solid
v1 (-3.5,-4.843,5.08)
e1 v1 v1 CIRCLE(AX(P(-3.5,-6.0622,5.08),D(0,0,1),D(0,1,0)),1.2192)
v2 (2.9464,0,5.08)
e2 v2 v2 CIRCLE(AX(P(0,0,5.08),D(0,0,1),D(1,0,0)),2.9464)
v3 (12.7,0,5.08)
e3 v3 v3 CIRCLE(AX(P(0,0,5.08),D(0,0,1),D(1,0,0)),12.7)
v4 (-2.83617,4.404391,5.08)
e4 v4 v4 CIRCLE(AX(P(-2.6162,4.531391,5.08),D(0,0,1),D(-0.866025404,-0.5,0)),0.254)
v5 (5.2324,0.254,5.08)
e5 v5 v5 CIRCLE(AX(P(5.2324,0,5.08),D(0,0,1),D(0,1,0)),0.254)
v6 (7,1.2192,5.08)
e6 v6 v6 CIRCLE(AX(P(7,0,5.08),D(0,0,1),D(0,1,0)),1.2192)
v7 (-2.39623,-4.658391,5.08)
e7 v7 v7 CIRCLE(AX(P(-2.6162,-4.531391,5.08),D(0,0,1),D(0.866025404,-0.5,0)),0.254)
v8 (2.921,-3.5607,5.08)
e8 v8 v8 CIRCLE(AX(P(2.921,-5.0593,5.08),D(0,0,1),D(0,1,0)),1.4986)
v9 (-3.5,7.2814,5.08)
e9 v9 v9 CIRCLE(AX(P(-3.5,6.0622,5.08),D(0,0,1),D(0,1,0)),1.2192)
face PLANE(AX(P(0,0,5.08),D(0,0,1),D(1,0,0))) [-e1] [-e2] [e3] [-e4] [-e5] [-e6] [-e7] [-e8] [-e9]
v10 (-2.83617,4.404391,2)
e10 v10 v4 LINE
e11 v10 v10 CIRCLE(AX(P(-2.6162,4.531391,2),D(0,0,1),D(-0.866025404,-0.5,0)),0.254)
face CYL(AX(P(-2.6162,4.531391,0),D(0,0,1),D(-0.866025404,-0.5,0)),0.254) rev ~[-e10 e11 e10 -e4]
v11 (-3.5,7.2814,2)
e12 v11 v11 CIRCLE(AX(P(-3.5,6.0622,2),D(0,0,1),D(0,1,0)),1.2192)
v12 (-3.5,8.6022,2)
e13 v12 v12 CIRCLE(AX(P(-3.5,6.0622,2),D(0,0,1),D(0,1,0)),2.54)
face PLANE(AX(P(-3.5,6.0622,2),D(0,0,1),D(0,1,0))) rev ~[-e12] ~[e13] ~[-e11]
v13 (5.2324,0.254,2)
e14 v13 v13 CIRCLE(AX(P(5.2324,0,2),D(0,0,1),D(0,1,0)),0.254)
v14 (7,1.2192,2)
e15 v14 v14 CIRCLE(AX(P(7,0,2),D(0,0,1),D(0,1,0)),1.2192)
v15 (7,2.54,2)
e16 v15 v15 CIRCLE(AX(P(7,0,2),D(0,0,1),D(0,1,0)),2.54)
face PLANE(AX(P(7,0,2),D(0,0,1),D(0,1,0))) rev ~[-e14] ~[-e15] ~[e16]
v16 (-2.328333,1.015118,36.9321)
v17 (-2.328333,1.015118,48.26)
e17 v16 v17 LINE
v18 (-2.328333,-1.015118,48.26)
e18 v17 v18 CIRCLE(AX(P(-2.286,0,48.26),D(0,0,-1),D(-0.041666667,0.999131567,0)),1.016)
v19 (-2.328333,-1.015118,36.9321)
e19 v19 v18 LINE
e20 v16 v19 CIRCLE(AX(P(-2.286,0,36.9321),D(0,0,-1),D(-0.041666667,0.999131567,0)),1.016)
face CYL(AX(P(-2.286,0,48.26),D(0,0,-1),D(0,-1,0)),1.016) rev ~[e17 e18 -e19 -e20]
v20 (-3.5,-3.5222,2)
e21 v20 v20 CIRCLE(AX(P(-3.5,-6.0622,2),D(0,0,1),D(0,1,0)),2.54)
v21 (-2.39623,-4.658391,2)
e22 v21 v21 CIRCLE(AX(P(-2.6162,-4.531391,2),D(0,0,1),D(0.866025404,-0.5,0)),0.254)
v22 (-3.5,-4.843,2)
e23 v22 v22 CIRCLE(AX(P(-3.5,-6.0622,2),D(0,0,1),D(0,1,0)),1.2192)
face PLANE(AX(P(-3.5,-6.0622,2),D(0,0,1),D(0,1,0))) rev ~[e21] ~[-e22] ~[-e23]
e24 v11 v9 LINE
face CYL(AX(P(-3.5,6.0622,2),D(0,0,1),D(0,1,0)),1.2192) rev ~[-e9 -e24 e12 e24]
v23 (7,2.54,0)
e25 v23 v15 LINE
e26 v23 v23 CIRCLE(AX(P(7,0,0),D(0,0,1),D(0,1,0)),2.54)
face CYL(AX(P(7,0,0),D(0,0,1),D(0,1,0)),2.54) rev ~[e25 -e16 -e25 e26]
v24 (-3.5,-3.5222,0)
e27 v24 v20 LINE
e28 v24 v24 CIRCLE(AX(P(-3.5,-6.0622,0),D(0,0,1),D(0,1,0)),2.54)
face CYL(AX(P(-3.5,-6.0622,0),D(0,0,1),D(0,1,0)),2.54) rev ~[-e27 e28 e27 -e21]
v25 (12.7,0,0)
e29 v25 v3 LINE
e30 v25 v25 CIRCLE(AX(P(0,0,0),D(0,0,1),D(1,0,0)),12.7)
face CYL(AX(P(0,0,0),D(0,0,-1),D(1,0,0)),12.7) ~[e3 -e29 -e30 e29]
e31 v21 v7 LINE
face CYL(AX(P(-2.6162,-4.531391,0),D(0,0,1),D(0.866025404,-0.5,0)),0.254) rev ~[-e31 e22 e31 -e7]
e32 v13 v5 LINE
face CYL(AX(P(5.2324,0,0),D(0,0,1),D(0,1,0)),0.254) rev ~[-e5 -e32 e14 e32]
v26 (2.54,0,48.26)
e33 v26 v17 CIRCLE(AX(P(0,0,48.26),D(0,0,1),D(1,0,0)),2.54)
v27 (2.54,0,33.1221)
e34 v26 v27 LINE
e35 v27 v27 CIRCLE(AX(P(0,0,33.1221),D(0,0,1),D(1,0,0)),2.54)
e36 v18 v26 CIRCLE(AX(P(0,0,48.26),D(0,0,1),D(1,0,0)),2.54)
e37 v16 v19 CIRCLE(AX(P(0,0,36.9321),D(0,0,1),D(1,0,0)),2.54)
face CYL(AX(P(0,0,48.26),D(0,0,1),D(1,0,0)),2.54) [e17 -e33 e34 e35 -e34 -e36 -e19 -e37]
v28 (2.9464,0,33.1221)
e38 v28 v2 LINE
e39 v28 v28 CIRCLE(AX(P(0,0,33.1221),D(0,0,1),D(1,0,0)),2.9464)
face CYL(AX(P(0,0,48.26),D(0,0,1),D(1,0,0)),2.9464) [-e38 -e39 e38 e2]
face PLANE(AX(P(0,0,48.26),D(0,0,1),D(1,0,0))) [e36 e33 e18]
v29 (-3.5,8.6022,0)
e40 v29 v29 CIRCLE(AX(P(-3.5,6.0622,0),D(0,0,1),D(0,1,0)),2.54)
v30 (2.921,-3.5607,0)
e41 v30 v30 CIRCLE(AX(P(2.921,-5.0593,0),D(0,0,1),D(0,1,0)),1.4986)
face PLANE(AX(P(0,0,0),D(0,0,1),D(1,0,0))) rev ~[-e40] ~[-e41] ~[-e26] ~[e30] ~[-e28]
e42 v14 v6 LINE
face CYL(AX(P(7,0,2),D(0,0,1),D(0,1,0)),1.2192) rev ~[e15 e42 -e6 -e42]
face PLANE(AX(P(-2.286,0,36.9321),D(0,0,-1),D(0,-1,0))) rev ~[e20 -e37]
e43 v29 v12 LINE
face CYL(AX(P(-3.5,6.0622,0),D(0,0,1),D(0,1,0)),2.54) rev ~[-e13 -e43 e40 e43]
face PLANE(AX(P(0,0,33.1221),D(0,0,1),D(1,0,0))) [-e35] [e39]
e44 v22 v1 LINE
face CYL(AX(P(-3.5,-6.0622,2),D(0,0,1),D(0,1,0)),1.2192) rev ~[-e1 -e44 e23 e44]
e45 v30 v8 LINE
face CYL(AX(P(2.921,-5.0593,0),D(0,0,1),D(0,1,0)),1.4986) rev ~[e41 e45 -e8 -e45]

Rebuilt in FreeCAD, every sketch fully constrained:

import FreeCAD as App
import Part
import Sketcher

V = App.Vector
Q = App.Units.Quantity

doc = App.newDocument("Part")
params = doc.addObject("Spreadsheet::Sheet", "Params")
for row, (alias, value) in enumerate([
    ("sketch1_diameter", "1 in"),
    ("pad1_length", "1.9 in"),
    ("sketch2_diameter", "1 in"),
    ("sketch2_diameter2", "0.232 in"),
    ("pocket1_length", "1.7 in"),
    ("sketch3_diameter", "0.096 in"),
    ("hole_diameter", "0.096 in"),
    ("hole_cbore_diameter", "0.2 in"),
    ("hole_cbore_depth", "2 mm"),
    ("sketch4_diameter", "0.118 in"),
    ("hole2_diameter", "0.118 in"),
    ("sketch5_diameter", "0.2 in"),
    ("sketch5_diameter2", "0.232 in"),
    ("pocket2_length", "15.1379 mm"),
    ("sketch6_diameter", "0.08 in"),
    ("hole3_diameter", "0.08 in"),
    ("hole3_depth", "11.3279 mm"),
    ("sketch7_diameter", "0.02 in"),
    ("hole4_diameter", "0.02 in"),
], start=1):
    params.set(f"A{row}", alias)
    params.set(f"B{row}", "=" + value)
    params.setAlias(f"B{row}", alias)

body = doc.addObject("PartDesign::Body", "Body")

# Sketch on XY plane
sketch1 = doc.addObject("Sketcher::SketchObject", "Sketch")
body.addObject(sketch1)
sketch1.AttachmentSupport = (doc.XY_Plane, [""])
sketch1.MapMode = "FlatFace"
sketch1.addGeometry(Part.Circle(V(0, 0, 0), V(0, 0, 1), 13), False)
sketch1.addConstraint([
    Sketcher.Constraint("Coincident", 0, 3, -1, 1),
    Sketcher.Constraint("Diameter", 0, Q("1 in")),
])
sketch1.setExpression("Constraints[1]", "Params.sketch1_diameter")
pad1 = doc.addObject("PartDesign::Pad", "Pad")
body.addObject(pad1)
pad1.Profile = sketch1
pad1.setExpression("Length", "Params.pad1_length")

# Sketch on XY plane
sketch2 = doc.addObject("Sketcher::SketchObject", "Sketch001")
body.addObject(sketch2)
sketch2.AttachmentSupport = (doc.XY_Plane, [""])
sketch2.MapMode = "FlatFace"
sketch2.AttachmentOffset = App.Placement(V(0, 0, 1.9 * 25.4), App.Rotation())
sketch2.addGeometry([
    Part.Circle(V(0, 0, 0), V(0, 0, 1), 12.7),
    Part.Circle(V(0, 0, 0), V(0, 0, 1), 2.9),
], False)
sketch2.addConstraint([
    Sketcher.Constraint("Coincident", 0, 3, -1, 1),
    Sketcher.Constraint("Coincident", 1, 3, -1, 1),
    Sketcher.Constraint("Diameter", 0, Q("1 in")),
    Sketcher.Constraint("Diameter", 1, Q("0.232 in")),
])
sketch2.setExpression("Constraints[2]", "Params.sketch2_diameter")
sketch2.setExpression("Constraints[3]", "Params.sketch2_diameter2")
pocket1 = doc.addObject("PartDesign::Pocket", "Pocket")
body.addObject(pocket1)
pocket1.Profile = sketch2
pocket1.setExpression("Length", "Params.pocket1_length")

# Sketch on XY plane
sketch3 = doc.addObject("Sketcher::SketchObject", "Sketch002")
body.addObject(sketch3)
sketch3.AttachmentSupport = (doc.XY_Plane, [""])
sketch3.MapMode = "FlatFace"
sketch3.addGeometry([
    Part.Circle(V(7, 0, 0), V(0, 0, 1), 1.2),
    Part.Circle(V(-3.5, -6.1, 0), V(0, 0, 1), 1.2),
    Part.Circle(V(-3.5, 6.1, 0), V(0, 0, 1), 1.2),
], False)
sketch3.addConstraint([
    Sketcher.Constraint("Equal", 0, 1),
    Sketcher.Constraint("Equal", 1, 2),
    Sketcher.Constraint("Symmetric", 1, 3, 2, 3, -1),
    Sketcher.Constraint("PointOnObject", 0, 3, -1),
    Sketcher.Constraint("Diameter", 0, Q("0.096 in")),
    Sketcher.Constraint("DistanceX", -1, 1, 0, 3, Q("0.2756 in")),
    Sketcher.Constraint("DistanceX", 1, 3, -1, 1, Q("0.1378 in")),
    Sketcher.Constraint("DistanceY", 1, 3, -1, 1, 6.0622),
])
sketch3.setExpression("Constraints[4]", "Params.sketch3_diameter")
doc.recompute()
hole = doc.addObject("PartDesign::Hole", "Hole")
body.addObject(hole)
hole.Profile = sketch3
hole.ThreadType = "None"
hole.setExpression("Diameter", "Params.hole_diameter")
hole.DepthType = "ThroughAll"
hole.HoleCutType = "Counterbore"
hole.setExpression("HoleCutDiameter", "Params.hole_cbore_diameter")
hole.setExpression("HoleCutDepth", "Params.hole_cbore_depth")
hole.Reversed = True

# Sketch on XY plane
sketch4 = doc.addObject("Sketcher::SketchObject", "Sketch003")
body.addObject(sketch4)
sketch4.AttachmentSupport = (doc.XY_Plane, [""])
sketch4.MapMode = "FlatFace"
sketch4.addGeometry(Part.Circle(V(2.9, -5.1, 0), V(0, 0, 1), 1.5), False)
sketch4.addConstraint([
    Sketcher.Constraint("Diameter", 0, Q("0.118 in")),
    Sketcher.Constraint("DistanceX", -1, 1, 0, 3, Q("0.115 in")),
    Sketcher.Constraint("DistanceY", 0, 3, -1, 1, 5.0593),
])
sketch4.setExpression("Constraints[0]", "Params.sketch4_diameter")
doc.recompute()
hole2 = doc.addObject("PartDesign::Hole", "Hole001")
body.addObject(hole2)
hole2.Profile = sketch4
hole2.ThreadType = "None"
hole2.setExpression("Diameter", "Params.hole2_diameter")
hole2.DepthType = "ThroughAll"
hole2.Reversed = True

# Sketch on XY plane
sketch5 = doc.addObject("Sketcher::SketchObject", "Sketch004")
body.addObject(sketch5)
sketch5.AttachmentSupport = (doc.XY_Plane, [""])
sketch5.MapMode = "FlatFace"
sketch5.AttachmentOffset = App.Placement(V(0, 0, 1.9 * 25.4), App.Rotation())
sketch5.addGeometry([
    Part.Circle(V(0, 0, 0), V(0, 0, 1), 2.9),
    Part.Circle(V(0, 0, 0), V(0, 0, 1), 2.5),
], False)
sketch5.addConstraint([
    Sketcher.Constraint("Coincident", 0, 3, -1, 1),
    Sketcher.Constraint("Coincident", 1, 3, -1, 1),
    Sketcher.Constraint("Diameter", 1, Q("0.2 in")),
    Sketcher.Constraint("Diameter", 0, Q("0.232 in")),
])
sketch5.setExpression("Constraints[2]", "Params.sketch5_diameter")
sketch5.setExpression("Constraints[3]", "Params.sketch5_diameter2")
pocket2 = doc.addObject("PartDesign::Pocket", "Pocket001")
body.addObject(pocket2)
pocket2.Profile = sketch5
pocket2.setExpression("Length", "Params.pocket2_length")

# Sketch on XY plane
sketch6 = doc.addObject("Sketcher::SketchObject", "Sketch005")
body.addObject(sketch6)
sketch6.AttachmentSupport = (doc.XY_Plane, [""])
sketch6.MapMode = "FlatFace"
sketch6.AttachmentOffset = App.Placement(V(0, 0, 1.9 * 25.4), App.Rotation())
sketch6.addGeometry(Part.Circle(V(-2.3, 0, 0), V(0, 0, 1), 1), False)
sketch6.addConstraint([
    Sketcher.Constraint("PointOnObject", 0, 3, -1),
    Sketcher.Constraint("Diameter", 0, Q("0.08 in")),
    Sketcher.Constraint("DistanceX", 0, 3, -1, 1, Q("0.09 in")),
])
sketch6.setExpression("Constraints[1]", "Params.sketch6_diameter")
doc.recompute()
hole3 = doc.addObject("PartDesign::Hole", "Hole002")
body.addObject(hole3)
hole3.Profile = sketch6
hole3.ThreadType = "None"
hole3.setExpression("Diameter", "Params.hole3_diameter")
hole3.DepthType = "Dimension"
hole3.setExpression("Depth", "Params.hole3_depth")
hole3.DrillPoint = "Flat"

# Sketch on XY plane
sketch7 = doc.addObject("Sketcher::SketchObject", "Sketch006")
body.addObject(sketch7)
sketch7.AttachmentSupport = (doc.XY_Plane, [""])
sketch7.MapMode = "FlatFace"
sketch7.addGeometry(Part.Circle(V(5.23, 0, 0), V(0, 0, 1), 0.25), False)
sketch7.addConstraint([
    Sketcher.Constraint("PointOnObject", 0, 3, -1),
    Sketcher.Constraint("Diameter", 0, Q("0.02 in")),
    Sketcher.Constraint("DistanceX", -1, 1, 0, 3, Q("0.206 in")),
])
sketch7.setExpression("Constraints[1]", "Params.sketch7_diameter")
doc.recompute()
hole4 = doc.addObject("PartDesign::Hole", "Hole003")
body.addObject(hole4)
hole4.Profile = sketch7
hole4.ThreadType = "None"
hole4.setExpression("Diameter", "Params.hole4_diameter")
hole4.DepthType = "ThroughAll"
hole4.Reversed = True
doc.recompute()

polarpattern = doc.addObject("PartDesign::PolarPattern", "PolarPattern")
body.addObject(polarpattern)
polarpattern.Originals = [hole4]
polarpattern.Axis = (doc.Z_Axis, [""])
polarpattern.Angle = 360
polarpattern.Occurrences = 3
body.Tip = polarpattern

doc.recompute()
